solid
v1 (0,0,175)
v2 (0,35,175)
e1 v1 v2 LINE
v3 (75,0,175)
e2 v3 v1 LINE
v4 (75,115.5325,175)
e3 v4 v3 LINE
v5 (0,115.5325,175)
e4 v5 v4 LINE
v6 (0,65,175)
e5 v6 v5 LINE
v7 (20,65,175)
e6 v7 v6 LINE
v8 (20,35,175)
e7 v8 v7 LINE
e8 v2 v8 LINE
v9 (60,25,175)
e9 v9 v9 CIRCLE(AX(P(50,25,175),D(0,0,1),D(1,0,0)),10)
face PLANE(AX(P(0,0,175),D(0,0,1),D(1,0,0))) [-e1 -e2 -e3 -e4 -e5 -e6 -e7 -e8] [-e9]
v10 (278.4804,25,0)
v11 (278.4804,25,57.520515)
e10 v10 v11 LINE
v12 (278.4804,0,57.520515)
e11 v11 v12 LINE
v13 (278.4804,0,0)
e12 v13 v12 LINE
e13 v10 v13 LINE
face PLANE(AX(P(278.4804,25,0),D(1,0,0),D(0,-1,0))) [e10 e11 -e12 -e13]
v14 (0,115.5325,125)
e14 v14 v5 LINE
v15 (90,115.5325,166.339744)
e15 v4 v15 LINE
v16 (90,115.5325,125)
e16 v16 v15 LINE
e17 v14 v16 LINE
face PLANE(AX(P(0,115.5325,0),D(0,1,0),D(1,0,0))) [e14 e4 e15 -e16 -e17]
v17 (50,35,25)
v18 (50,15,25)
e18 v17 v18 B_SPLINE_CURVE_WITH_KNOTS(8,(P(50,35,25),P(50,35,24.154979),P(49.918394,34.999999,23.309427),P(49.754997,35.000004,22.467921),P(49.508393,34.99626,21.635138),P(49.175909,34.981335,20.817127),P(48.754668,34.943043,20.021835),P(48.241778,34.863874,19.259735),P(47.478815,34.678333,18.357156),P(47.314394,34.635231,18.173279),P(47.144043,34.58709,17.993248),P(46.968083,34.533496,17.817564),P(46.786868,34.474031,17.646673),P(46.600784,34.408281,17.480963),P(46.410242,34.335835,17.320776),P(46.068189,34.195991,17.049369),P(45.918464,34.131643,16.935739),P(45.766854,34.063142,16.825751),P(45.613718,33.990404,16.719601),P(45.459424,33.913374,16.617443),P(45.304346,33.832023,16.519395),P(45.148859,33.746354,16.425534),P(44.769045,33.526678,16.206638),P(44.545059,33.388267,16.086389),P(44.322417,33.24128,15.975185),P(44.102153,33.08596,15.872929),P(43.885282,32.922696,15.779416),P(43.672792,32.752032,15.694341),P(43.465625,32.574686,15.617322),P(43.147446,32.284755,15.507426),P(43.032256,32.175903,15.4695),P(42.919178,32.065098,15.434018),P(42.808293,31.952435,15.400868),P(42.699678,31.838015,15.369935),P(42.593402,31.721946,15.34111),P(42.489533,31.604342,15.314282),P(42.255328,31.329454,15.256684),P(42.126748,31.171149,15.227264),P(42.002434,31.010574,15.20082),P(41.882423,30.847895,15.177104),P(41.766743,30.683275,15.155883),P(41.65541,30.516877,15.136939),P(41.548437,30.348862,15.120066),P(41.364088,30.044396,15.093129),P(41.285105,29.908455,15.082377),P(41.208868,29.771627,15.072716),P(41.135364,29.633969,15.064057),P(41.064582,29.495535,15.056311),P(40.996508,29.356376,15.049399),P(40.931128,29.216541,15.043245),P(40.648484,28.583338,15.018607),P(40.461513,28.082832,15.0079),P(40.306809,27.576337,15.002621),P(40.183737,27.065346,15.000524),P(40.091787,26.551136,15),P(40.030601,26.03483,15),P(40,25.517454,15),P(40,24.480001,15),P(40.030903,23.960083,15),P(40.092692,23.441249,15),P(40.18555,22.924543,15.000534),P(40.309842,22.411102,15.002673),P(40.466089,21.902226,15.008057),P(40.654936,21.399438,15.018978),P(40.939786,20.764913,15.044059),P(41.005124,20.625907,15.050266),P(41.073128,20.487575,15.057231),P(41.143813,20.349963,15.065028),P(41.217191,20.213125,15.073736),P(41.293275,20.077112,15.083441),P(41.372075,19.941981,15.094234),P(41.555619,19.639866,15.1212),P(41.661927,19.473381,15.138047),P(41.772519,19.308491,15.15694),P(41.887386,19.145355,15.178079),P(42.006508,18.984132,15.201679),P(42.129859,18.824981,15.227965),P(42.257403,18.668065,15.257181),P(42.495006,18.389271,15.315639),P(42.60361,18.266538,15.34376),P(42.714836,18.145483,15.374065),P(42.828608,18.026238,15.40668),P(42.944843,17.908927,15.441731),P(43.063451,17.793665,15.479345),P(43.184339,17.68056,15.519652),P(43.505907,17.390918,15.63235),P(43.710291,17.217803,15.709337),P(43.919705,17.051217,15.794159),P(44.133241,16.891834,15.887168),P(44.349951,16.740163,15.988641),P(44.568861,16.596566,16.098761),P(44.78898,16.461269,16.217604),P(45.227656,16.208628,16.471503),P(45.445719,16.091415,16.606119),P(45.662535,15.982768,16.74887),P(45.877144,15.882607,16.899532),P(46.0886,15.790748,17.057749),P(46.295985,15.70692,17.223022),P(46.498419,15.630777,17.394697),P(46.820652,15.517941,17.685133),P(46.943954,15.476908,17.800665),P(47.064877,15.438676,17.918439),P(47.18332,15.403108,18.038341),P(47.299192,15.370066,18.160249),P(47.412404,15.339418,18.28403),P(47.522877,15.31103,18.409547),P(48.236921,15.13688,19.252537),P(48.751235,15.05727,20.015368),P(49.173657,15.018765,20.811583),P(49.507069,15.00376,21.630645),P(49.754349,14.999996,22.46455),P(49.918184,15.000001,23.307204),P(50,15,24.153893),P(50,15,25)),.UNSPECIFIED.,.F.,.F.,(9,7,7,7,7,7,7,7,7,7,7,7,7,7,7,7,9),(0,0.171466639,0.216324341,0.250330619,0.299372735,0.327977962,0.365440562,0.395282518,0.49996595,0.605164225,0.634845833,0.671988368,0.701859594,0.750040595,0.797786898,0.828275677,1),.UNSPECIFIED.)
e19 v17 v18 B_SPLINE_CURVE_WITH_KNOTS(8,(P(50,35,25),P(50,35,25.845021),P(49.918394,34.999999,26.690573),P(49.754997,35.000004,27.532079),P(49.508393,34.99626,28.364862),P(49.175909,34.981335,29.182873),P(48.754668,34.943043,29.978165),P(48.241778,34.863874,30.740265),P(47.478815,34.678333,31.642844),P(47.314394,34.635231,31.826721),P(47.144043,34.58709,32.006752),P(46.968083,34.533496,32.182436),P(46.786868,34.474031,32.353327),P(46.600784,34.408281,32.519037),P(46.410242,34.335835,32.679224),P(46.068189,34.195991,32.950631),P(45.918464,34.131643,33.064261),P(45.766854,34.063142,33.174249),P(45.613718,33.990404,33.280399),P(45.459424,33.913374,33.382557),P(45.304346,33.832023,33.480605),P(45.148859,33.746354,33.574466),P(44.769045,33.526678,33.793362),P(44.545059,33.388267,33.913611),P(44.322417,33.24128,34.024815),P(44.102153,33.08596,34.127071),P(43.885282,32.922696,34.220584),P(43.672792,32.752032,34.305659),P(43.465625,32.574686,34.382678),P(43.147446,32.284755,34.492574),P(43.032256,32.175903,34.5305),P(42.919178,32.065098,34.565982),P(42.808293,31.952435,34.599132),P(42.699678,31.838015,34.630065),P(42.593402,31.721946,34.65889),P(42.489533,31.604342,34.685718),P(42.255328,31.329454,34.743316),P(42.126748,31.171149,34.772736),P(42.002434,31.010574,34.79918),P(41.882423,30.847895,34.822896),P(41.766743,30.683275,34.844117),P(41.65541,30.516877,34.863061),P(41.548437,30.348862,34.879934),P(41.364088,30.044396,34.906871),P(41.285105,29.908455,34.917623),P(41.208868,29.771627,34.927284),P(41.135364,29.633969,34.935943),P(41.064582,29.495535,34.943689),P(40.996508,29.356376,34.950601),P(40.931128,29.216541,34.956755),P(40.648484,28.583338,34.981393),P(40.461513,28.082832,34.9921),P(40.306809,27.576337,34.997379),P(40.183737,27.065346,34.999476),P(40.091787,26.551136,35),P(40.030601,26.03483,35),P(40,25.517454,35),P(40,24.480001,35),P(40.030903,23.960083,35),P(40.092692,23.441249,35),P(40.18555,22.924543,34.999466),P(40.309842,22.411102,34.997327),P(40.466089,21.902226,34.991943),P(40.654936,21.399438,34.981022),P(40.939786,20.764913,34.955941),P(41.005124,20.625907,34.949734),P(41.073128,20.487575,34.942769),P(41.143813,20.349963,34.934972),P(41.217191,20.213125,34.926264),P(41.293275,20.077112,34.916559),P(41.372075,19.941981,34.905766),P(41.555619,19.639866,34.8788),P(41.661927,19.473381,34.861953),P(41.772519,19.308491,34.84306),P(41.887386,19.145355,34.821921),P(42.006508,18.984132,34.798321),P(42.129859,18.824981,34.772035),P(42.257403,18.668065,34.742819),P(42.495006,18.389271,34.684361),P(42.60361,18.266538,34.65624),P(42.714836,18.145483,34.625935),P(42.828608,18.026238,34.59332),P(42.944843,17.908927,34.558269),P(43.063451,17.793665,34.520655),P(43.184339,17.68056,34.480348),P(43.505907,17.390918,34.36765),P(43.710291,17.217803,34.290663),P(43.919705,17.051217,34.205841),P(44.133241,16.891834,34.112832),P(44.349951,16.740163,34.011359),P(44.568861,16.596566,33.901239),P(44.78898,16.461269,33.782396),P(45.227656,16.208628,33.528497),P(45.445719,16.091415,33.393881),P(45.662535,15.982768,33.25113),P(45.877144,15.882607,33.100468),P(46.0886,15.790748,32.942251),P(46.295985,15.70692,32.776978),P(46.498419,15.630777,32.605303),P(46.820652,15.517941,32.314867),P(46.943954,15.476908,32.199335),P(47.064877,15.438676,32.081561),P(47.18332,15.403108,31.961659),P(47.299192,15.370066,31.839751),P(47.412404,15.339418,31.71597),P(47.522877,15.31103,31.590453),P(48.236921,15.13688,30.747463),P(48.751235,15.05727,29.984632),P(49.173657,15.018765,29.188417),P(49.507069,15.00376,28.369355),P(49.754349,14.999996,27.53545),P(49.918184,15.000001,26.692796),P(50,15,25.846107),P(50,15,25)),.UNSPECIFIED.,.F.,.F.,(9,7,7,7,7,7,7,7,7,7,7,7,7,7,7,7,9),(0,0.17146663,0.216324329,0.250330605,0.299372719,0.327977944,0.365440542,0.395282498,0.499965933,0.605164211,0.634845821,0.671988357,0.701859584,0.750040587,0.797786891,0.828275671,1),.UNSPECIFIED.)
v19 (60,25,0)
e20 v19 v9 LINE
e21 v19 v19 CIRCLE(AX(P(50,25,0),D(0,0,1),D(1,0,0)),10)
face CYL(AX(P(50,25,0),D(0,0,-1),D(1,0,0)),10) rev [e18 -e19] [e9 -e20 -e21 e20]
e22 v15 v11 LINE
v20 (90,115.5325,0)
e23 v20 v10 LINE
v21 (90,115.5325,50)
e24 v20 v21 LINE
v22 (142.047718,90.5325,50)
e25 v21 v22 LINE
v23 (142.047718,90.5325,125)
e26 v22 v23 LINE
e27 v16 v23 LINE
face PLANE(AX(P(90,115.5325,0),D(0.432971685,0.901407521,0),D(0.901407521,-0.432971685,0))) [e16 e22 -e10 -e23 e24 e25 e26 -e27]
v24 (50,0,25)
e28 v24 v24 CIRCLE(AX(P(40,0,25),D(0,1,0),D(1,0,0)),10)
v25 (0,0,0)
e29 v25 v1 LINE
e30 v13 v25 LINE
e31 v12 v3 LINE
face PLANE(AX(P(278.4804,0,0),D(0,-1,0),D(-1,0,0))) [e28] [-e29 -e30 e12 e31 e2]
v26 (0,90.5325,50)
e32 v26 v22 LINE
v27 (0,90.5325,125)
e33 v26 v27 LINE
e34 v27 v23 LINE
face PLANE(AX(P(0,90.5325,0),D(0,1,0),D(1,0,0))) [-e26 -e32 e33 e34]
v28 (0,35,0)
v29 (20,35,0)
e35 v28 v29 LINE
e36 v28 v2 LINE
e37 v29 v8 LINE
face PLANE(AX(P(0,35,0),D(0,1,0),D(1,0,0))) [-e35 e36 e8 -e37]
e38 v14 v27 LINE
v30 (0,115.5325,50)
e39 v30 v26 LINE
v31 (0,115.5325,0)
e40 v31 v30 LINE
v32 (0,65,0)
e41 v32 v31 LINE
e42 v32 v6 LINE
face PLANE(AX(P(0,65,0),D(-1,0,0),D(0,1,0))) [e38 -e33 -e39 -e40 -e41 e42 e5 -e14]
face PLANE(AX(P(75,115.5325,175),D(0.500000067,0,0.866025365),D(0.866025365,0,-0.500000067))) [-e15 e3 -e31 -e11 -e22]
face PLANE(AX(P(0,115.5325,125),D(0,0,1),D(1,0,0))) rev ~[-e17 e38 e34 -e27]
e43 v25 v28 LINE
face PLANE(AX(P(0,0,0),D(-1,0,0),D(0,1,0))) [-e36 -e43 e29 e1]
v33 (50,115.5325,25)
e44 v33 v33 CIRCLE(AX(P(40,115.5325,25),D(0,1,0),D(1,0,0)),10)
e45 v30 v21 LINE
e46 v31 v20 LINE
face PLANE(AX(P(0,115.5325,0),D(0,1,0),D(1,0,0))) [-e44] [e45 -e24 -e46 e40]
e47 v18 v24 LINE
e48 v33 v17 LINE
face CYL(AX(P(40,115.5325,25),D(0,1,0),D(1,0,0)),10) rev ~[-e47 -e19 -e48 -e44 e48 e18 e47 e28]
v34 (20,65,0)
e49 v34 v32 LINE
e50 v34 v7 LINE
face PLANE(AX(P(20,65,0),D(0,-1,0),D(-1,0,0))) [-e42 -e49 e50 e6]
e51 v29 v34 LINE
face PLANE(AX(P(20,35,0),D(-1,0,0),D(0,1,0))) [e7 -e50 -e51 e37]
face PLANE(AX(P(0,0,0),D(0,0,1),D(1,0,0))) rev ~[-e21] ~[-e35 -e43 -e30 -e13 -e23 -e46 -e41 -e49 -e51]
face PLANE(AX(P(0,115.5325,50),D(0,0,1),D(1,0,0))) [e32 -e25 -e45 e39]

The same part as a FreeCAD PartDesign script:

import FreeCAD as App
import Part
import Sketcher
Q = App.Units.Quantity

doc = App.newDocument("Part")
body = doc.addObject("PartDesign::Body", "Body")

sketch1 = body.newObject("Sketcher::SketchObject", "Sketch")
sketch1.AttachmentSupport = (doc.getObject("XY_Plane"), [""])
sketch1.MapMode = "FlatFace"
sketch1.addGeometry(Part.LineSegment(App.Vector(0, 35, 0), App.Vector(0, 0, 0)), False)
sketch1.addGeometry(Part.LineSegment(App.Vector(0, 0, 0), App.Vector(278, 0, 0)), False)
sketch1.addGeometry(Part.LineSegment(App.Vector(278, 0, 0), App.Vector(278, 25, 0)), False)
sketch1.addGeometry(Part.LineSegment(App.Vector(278, 25, 0), App.Vector(90, 116, 0)), False)
sketch1.addGeometry(Part.LineSegment(App.Vector(90, 116, 0), App.Vector(0, 116, 0)), False)
sketch1.addGeometry(Part.LineSegment(App.Vector(0, 116, 0), App.Vector(0, 65, 0)), False)
sketch1.addGeometry(Part.LineSegment(App.Vector(0, 65, 0), App.Vector(20, 65, 0)), False)
sketch1.addGeometry(Part.LineSegment(App.Vector(20, 65, 0), App.Vector(20, 35, 0)), False)
sketch1.addGeometry(Part.LineSegment(App.Vector(20, 35, 0), App.Vector(0, 35, 0)), False)
sketch1.addGeometry(Part.Circle(App.Vector(50, 25, 0), App.Vector(0, 0, 1), 10), False)
sketch1.addConstraint(Sketcher.Constraint("Coincident", 0, 2, 1, 1))
sketch1.addConstraint(Sketcher.Constraint("Coincident", 1, 2, 2, 1))
sketch1.addConstraint(Sketcher.Constraint("Coincident", 2, 2, 3, 1))
sketch1.addConstraint(Sketcher.Constraint("Coincident", 3, 2, 4, 1))
sketch1.addConstraint(Sketcher.Constraint("Coincident", 4, 2, 5, 1))
sketch1.addConstraint(Sketcher.Constraint("Coincident", 5, 2, 6, 1))
sketch1.addConstraint(Sketcher.Constraint("Coincident", 6, 2, 7, 1))
sketch1.addConstraint(Sketcher.Constraint("Coincident", 7, 2, 8, 1))
sketch1.addConstraint(Sketcher.Constraint("Coincident", 8, 2, 0, 1))
sketch1.addConstraint(Sketcher.Constraint("Vertical", 0))
sketch1.addConstraint(Sketcher.Constraint("Horizontal", 1))
sketch1.addConstraint(Sketcher.Constraint("Vertical", 2))
sketch1.addConstraint(Sketcher.Constraint("Horizontal", 4))
sketch1.addConstraint(Sketcher.Constraint("Vertical", 5))
sketch1.addConstraint(Sketcher.Constraint("Horizontal", 6))
sketch1.addConstraint(Sketcher.Constraint("Vertical", 7))
sketch1.addConstraint(Sketcher.Constraint("Horizontal", 8))
sketch1.addConstraint(Sketcher.Constraint("Coincident", 0, 2, -1, 1))
sketch1.addConstraint(Sketcher.Constraint("PointOnObject", 4, 2, -2))
sketch1.addConstraint(Sketcher.Constraint("Horizontal", 9, 3, 2, 2))
sketch1.addConstraint(Sketcher.Constraint("Diameter", 9, Q("20 mm")))
sketch1.addConstraint(Sketcher.Constraint("DistanceX", 4, 2, 4, 1, Q("90 mm")))
sketch1.addConstraint(Sketcher.Constraint("DistanceX", 6, 1, 6, 2, Q("20 mm")))
sketch1.addConstraint(Sketcher.Constraint("DistanceY", 0, 2, 0, 1, Q("35 mm")))
sketch1.addConstraint(Sketcher.Constraint("DistanceY", 2, 1, 2, 2, Q("25 mm")))
sketch1.addConstraint(Sketcher.Constraint("DistanceY", 7, 2, 7, 1, Q("30 mm")))
sketch1.addConstraint(Sketcher.Constraint("DistanceX", -1, 1, 9, 3, Q("50 mm")))
sketch1.addConstraint(Sketcher.Constraint("DistanceX", 1, 1, 1, 2, Q("278.4804 mm")))
sketch1.addConstraint(Sketcher.Constraint("DistanceY", 5, 2, 5, 1, Q("50.5325 mm")))
pad1 = body.newObject("PartDesign::Pad", "Pad")
pad1.Profile = sketch1
pad1.Length = 175

sketch2 = body.newObject("Sketcher::SketchObject", "Sketch001")
sketch2.AttachmentSupport = (doc.getObject("XZ_Plane"), [""])
sketch2.MapMode = "FlatFace"
sketch2.AttachmentOffset = App.Placement(App.Vector(0, 0, -115.5325), App.Rotation())
sketch2.addGeometry(Part.Circle(App.Vector(40, 25, 0), App.Vector(0, 0, 1), 10), False)
sketch2.addConstraint(Sketcher.Constraint("Diameter", 0, Q("20 mm")))
sketch2.addConstraint(Sketcher.Constraint("DistanceX", -1, 1, 0, 3, Q("40 mm")))
sketch2.addConstraint(Sketcher.Constraint("DistanceY", -1, 1, 0, 3, Q("25 mm")))
pocket1 = body.newObject("PartDesign::Pocket", "Pocket")
pocket1.Profile = sketch2
pocket1.Type = "ThroughAll"
pocket1.Reversed = True

sketch3 = body.newObject("Sketcher::SketchObject", "Sketch002")
sketch3.AttachmentSupport = (doc.getObject("XZ_Plane"), [""])
sketch3.MapMode = "FlatFace"
sketch3.AttachmentOffset = App.Placement(App.Vector(0, 0, -115.5325), App.Rotation())
sketch3.addGeometry(Part.LineSegment(App.Vector(195, 50, 0), App.Vector(0, 50, 0)), False)
sketch3.addGeometry(Part.LineSegment(App.Vector(0, 50, 0), App.Vector(0, 125, 0)), False)
sketch3.addGeometry(Part.LineSegment(App.Vector(0, 125, 0), App.Vector(195, 125, 0)), False)
sketch3.addGeometry(Part.LineSegment(App.Vector(195, 125, 0), App.Vector(195, 50, 0)), False)
sketch3.addConstraint(Sketcher.Constraint("Coincident", 0, 2, 1, 1))
sketch3.addConstraint(Sketcher.Constraint("Coincident", 1, 2, 2, 1))
sketch3.addConstraint(Sketcher.Constraint("Coincident", 2, 2, 3, 1))
sketch3.addConstraint(Sketcher.Constraint("Coincident", 3, 2, 0, 1))
sketch3.addConstraint(Sketcher.Constraint("Horizontal", 0))
sketch3.addConstraint(Sketcher.Constraint("Vertical", 1))
sketch3.addConstraint(Sketcher.Constraint("Horizontal", 2))
sketch3.addConstraint(Sketcher.Constraint("Vertical", 3))
sketch3.addConstraint(Sketcher.Constraint("PointOnObject", 0, 2, -2))
sketch3.addConstraint(Sketcher.Constraint("DistanceY", 1, 1, 1, 2, Q("75 mm")))
sketch3.addConstraint(Sketcher.Constraint("DistanceY", -1, 1, 0, 2, Q("50 mm")))
sketch3.addConstraint(Sketcher.Constraint("DistanceX", 0, 2, 0, 1, Q("195.278 mm")))
pocket2 = body.newObject("PartDesign::Pocket", "Pocket001")
pocket2.Profile = sketch3
pocket2.Length = 25
pocket2.Reversed = True

sketch4 = body.newObject("Sketcher::SketchObject", "Sketch003")
sketch4.AttachmentSupport = (doc.getObject("XZ_Plane"), [""])
sketch4.MapMode = "FlatFace"
sketch4.AttachmentOffset = App.Placement(App.Vector(0, 0, -115.5325), App.Rotation())
sketch4.addGeometry(Part.LineSegment(App.Vector(320, 34, 0), App.Vector(75, 175, 0)), False)
sketch4.addGeometry(Part.LineSegment(App.Vector(75, 175, 0), App.Vector(320, 175, 0)), False)
sketch4.addGeometry(Part.LineSegment(App.Vector(320, 175, 0), App.Vector(320, 34, 0)), False)
sketch4.addConstraint(Sketcher.Constraint("Coincident", 0, 2, 1, 1))
sketch4.addConstraint(Sketcher.Constraint("Coincident", 1, 2, 2, 1))
sketch4.addConstraint(Sketcher.Constraint("Coincident", 2, 2, 0, 1))
sketch4.addConstraint(Sketcher.Constraint("Horizontal", 1))
sketch4.addConstraint(Sketcher.Constraint("Vertical", 2))
sketch4.addConstraint(Sketcher.Constraint("DistanceX", -1, 1, 0, 2, Q("75 mm")))
sketch4.addConstraint(Sketcher.Constraint("Angle", 0, Q("150 deg")))
sketch4.addConstraint(Sketcher.Constraint("DistanceY", -1, 1, 0, 2, Q("175 mm")))
sketch4.addConstraint(Sketcher.Constraint("DistanceX", 1, 1, 1, 2, Q("245.039 mm")))
pocket3 = body.newObject("PartDesign::Pocket", "Pocket002")
pocket3.Profile = sketch4
pocket3.Type = "ThroughAll"
pocket3.Reversed = True

doc.recompute()
